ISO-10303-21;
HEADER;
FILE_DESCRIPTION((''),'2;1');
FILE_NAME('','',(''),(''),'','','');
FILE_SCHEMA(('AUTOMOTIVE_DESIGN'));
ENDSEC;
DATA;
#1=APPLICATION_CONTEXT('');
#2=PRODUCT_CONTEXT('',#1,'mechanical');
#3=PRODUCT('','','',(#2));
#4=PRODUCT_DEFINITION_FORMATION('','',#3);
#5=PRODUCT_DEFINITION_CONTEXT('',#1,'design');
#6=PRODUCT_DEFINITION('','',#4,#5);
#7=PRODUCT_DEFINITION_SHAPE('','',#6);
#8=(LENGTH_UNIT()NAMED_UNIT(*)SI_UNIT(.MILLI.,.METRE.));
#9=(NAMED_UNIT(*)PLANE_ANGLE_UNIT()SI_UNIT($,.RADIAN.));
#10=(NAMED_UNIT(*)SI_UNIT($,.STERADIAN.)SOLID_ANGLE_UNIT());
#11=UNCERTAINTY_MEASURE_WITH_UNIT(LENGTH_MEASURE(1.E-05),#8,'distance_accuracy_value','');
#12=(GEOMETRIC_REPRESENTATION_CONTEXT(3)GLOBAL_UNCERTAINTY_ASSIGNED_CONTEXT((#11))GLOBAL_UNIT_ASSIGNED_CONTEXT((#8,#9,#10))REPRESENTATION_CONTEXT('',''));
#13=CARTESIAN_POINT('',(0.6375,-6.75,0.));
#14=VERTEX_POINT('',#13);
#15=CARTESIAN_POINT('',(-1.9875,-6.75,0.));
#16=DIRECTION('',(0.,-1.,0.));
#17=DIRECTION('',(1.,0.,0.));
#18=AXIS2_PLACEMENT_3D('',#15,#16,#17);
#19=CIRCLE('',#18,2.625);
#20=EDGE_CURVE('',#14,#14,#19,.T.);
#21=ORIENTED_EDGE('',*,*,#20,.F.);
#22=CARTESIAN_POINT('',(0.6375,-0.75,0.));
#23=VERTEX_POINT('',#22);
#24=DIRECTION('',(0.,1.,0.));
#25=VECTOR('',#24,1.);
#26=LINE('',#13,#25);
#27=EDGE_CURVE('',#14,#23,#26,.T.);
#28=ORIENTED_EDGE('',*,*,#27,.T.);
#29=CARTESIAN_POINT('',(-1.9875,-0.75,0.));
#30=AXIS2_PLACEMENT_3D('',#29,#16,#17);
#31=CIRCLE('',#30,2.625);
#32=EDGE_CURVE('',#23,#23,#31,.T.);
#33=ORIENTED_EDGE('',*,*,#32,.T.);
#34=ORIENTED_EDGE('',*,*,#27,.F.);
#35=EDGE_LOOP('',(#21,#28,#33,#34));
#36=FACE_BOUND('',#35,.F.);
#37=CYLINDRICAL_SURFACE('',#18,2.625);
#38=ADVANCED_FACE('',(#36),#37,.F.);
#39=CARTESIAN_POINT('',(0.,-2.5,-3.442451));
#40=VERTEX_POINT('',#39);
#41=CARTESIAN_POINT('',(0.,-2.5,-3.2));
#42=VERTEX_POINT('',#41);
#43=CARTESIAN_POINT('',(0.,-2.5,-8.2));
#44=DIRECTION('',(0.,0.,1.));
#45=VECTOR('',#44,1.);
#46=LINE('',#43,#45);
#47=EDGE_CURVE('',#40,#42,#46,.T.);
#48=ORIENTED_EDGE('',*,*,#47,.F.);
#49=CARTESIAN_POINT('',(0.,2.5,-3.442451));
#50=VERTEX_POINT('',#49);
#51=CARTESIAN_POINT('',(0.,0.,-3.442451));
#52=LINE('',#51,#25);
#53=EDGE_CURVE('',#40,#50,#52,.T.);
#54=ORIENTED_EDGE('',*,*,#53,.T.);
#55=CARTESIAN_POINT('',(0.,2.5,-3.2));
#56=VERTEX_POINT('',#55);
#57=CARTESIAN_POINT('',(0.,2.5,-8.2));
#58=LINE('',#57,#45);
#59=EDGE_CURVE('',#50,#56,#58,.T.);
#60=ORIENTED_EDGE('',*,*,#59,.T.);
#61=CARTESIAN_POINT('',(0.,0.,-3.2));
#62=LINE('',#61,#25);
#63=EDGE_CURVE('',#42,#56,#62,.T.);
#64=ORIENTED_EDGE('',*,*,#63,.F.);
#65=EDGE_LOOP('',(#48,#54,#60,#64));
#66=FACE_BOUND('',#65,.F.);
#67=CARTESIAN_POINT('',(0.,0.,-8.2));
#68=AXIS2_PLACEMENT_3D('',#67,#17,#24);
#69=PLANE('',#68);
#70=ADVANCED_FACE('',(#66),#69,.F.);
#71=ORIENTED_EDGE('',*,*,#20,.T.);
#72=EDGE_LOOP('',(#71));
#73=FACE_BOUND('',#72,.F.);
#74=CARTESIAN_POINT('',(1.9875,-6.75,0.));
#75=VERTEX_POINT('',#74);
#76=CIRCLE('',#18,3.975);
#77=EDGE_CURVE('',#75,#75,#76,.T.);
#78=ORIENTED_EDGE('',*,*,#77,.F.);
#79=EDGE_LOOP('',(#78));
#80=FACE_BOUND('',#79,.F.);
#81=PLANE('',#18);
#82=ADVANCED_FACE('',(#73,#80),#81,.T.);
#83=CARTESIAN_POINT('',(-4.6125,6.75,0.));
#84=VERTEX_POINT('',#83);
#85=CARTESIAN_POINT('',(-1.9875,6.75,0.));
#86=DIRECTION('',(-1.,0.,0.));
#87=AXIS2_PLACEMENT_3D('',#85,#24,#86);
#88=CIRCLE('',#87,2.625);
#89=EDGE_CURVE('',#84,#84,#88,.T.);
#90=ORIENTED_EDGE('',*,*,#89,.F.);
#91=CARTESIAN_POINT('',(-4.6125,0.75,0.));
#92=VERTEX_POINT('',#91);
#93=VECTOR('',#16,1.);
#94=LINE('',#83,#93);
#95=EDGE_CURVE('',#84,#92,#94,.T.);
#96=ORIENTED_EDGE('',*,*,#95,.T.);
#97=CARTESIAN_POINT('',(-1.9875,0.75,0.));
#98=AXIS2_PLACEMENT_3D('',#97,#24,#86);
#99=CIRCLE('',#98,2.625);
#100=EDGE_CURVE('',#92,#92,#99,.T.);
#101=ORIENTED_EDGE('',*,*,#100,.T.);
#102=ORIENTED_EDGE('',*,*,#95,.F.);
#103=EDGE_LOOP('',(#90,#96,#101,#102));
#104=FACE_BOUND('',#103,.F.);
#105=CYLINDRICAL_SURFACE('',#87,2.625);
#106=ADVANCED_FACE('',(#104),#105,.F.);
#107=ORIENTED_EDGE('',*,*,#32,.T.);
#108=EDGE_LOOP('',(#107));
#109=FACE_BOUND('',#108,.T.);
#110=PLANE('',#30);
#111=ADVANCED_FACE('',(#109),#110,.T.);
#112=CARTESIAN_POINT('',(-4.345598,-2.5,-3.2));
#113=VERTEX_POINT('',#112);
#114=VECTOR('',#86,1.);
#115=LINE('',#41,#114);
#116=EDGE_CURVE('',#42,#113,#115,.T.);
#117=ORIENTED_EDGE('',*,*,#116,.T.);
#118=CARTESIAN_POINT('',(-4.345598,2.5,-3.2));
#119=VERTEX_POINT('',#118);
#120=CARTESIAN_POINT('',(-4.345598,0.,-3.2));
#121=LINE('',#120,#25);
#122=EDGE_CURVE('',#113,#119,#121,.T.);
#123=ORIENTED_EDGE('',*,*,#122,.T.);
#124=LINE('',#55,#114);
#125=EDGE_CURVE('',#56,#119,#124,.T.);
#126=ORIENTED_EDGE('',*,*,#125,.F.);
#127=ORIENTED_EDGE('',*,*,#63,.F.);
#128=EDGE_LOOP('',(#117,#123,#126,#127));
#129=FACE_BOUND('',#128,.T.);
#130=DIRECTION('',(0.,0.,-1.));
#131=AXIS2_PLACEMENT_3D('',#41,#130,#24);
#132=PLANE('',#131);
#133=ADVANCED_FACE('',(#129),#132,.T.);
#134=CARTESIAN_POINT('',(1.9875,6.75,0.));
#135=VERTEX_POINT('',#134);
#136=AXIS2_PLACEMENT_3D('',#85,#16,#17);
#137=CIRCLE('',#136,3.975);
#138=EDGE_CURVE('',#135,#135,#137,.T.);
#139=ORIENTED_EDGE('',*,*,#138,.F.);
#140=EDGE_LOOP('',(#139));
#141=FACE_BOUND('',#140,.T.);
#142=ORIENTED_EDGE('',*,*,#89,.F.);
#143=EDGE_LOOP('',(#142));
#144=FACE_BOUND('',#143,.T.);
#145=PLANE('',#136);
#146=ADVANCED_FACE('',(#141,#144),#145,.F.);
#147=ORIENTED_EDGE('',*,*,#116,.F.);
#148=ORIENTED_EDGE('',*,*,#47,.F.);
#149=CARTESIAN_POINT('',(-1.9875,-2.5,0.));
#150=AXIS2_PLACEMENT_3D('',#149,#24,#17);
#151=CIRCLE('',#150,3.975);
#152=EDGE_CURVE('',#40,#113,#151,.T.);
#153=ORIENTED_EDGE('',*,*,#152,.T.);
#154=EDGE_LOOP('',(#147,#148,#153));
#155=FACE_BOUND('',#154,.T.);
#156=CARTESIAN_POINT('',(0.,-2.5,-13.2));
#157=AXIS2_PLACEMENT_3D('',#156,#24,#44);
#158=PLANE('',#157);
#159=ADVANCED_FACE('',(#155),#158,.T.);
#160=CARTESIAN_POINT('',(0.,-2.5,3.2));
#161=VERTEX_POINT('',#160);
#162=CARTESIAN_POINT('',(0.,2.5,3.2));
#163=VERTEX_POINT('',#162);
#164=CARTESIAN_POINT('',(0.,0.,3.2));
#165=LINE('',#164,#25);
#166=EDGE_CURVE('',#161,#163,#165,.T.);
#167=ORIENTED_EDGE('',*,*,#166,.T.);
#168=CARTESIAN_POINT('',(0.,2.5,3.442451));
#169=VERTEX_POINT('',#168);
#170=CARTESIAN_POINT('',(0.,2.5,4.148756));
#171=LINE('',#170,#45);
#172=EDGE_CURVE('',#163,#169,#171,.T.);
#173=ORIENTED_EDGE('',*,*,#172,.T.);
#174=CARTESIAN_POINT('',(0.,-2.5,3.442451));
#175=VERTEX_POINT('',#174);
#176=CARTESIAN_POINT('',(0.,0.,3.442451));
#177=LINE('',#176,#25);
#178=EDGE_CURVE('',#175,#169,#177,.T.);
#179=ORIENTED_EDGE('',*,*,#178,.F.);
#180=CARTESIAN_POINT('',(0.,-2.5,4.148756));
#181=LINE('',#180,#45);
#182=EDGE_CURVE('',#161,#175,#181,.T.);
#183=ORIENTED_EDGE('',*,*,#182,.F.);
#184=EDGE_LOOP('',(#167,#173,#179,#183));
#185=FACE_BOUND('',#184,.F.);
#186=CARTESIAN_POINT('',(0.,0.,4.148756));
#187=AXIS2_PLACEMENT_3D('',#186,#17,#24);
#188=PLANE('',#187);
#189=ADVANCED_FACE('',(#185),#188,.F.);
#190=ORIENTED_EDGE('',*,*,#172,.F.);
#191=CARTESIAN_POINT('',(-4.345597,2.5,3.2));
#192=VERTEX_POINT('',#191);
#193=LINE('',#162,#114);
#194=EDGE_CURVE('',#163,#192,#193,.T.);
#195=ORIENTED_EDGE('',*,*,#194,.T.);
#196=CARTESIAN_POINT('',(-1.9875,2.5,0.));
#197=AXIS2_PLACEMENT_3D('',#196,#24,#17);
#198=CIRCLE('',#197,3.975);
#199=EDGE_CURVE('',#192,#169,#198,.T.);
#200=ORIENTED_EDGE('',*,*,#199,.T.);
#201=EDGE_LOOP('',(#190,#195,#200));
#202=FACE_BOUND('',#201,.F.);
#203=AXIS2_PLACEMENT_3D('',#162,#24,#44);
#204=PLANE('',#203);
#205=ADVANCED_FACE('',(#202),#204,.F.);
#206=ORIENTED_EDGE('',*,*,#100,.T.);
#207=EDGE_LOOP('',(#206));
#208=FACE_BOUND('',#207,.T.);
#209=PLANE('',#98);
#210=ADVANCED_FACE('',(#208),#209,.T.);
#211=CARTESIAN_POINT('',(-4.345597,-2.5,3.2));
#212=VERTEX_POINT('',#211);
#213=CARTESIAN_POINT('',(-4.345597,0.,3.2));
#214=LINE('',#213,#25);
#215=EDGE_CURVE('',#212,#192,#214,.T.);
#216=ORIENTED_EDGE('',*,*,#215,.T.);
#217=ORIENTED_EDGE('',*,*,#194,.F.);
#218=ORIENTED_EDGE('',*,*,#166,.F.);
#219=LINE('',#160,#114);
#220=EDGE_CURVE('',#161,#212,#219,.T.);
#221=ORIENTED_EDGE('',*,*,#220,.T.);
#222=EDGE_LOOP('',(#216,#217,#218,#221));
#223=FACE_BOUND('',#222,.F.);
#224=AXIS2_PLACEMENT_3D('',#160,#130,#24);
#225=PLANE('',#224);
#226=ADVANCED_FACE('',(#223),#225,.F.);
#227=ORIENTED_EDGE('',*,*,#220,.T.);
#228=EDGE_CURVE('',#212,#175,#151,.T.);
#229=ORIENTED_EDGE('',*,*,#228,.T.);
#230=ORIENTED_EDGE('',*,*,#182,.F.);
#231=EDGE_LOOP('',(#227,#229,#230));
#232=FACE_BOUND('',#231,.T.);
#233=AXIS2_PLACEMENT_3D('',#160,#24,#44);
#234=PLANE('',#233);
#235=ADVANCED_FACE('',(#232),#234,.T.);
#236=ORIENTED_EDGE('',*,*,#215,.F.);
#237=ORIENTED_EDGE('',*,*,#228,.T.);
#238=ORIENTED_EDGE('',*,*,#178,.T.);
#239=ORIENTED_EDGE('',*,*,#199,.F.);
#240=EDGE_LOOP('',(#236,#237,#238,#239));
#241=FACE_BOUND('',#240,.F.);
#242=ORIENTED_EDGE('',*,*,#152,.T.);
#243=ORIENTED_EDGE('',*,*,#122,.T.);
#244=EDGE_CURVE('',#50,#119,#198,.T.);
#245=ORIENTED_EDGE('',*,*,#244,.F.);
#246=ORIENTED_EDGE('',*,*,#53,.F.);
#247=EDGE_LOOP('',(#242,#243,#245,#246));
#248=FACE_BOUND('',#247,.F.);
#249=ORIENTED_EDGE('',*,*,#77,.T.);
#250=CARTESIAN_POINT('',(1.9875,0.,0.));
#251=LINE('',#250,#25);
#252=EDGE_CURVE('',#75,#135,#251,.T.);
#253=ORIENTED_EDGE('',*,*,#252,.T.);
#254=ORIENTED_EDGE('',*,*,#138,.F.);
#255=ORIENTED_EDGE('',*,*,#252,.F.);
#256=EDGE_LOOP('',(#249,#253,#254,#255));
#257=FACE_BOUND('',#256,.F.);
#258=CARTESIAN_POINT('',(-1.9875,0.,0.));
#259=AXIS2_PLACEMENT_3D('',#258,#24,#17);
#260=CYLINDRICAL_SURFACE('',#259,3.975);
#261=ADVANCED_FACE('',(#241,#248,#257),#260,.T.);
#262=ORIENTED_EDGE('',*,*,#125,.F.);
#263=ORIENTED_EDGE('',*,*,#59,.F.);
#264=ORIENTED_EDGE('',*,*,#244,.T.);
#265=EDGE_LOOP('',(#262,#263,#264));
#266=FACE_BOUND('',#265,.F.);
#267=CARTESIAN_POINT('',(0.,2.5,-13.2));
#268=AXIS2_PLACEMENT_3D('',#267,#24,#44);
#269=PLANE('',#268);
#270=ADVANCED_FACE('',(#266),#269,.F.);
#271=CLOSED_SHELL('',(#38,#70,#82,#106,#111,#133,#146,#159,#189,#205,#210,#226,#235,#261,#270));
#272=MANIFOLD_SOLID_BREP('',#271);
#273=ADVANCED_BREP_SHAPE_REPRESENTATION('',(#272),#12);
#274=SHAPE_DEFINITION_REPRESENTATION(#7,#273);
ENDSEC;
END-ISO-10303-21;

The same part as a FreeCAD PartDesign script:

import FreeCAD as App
import Part
import Sketcher
from FreeCAD import Vector
Q = App.Units.Quantity

doc = App.newDocument("Part")
params = doc.addObject("Spreadsheet::Sheet", "Params")
for row, (alias, value) in enumerate([
    ("sketch1_height", "13.5 mm"),
    ("revolution_angle", "360 deg"),
    ("sketch2_width", "5 mm"),
    ("sketch2_height", "10 mm"),
    ("pocket1_length", "25 mm"),
    ("sketch3_diameter", "5.25 mm"),
    ("pocket2_length", "6 mm"),
    ("sketch4_diameter", "5.25 mm"),
    ("pocket3_length", "6 mm"),
], start=1):
    params.set(f"A{row}", alias)
    params.set(f"B{row}", "=" + value)
    params.setAlias(f"B{row}", alias)

body = doc.addObject("PartDesign::Body", "Body")

sketch1 = body.newObject("Sketcher::SketchObject", "Sketch")
sketch1.AttachmentSupport = (doc.getObject("XY_Plane"), [""])
sketch1.MapMode = "FlatFace"
sketch1.addGeometry([
    Part.LineSegment(Vector(-2, 6.8, 0), Vector(-2, -6.8, 0)),
    Part.LineSegment(Vector(-2, -6.8, 0), Vector(2, -6.8, 0)),
    Part.LineSegment(Vector(2, -6.8, 0), Vector(2, 6.8, 0)),
    Part.LineSegment(Vector(2, 6.8, 0), Vector(-2, 6.8, 0)),
], False)
sketch1.addGeometry(Part.LineSegment(Vector(-2, 6.8, 0), Vector(-2, -6.8, 0)), True)
sketch1.addConstraint([
    Sketcher.Constraint("Coincident", 0, 2, 1, 1),
    Sketcher.Constraint("Coincident", 1, 2, 2, 1),
    Sketcher.Constraint("Coincident", 2, 2, 3, 1),
    Sketcher.Constraint("Coincident", 3, 2, 0, 1),
    Sketcher.Constraint("Vertical", 0),
    Sketcher.Constraint("Horizontal", 1),
    Sketcher.Constraint("Vertical", 2),
    Sketcher.Constraint("Horizontal", 3),
    Sketcher.Constraint("Vertical", 4),
    Sketcher.Constraint("Coincident", 4, 1, 3, 2),
    Sketcher.Constraint("Symmetric", 0, 2, 2, 2, -1, 1),
    Sketcher.Constraint("Horizontal", 1, 2, 4, 2),
    Sketcher.Constraint("DistanceY", 0, 2, 0, 1, Q("13.5 mm")),
    Sketcher.Constraint("DistanceX", 1, 1, 1, 2, Q("3.975 mm")),
])
sketch1.setExpression("Constraints[12]", "Params.sketch1_height")
revolution = body.newObject("PartDesign::Revolution", "Revolution")
revolution.Profile = sketch1
revolution.ReferenceAxis = (sketch1, ["Axis0"])
revolution.setExpression("Angle", "Params.revolution_angle")

sketch2 = body.newObject("Sketcher::SketchObject", "Sketch001")
sketch2.AttachmentSupport = (doc.getObject("YZ_Plane"), [""])
sketch2.MapMode = "FlatFace"
sketch2.addGeometry([
    Part.LineSegment(Vector(-2.5, -3.2, 0), Vector(-2.5, -13.2, 0)),
    Part.LineSegment(Vector(-2.5, -13.2, 0), Vector(2.5, -13.2, 0)),
    Part.LineSegment(Vector(2.5, -13.2, 0), Vector(2.5, -3.2, 0)),
    Part.LineSegment(Vector(2.5, -3.2, 0), Vector(-2.5, -3.2, 0)),
    Part.LineSegment(Vector(-2.5, 5.1, 0), Vector(-2.5, 3.2, 0)),
    Part.LineSegment(Vector(-2.5, 3.2, 0), Vector(2.5, 3.2, 0)),
    Part.LineSegment(Vector(2.5, 3.2, 0), Vector(2.5, 5.1, 0)),
    Part.LineSegment(Vector(2.5, 5.1, 0), Vector(-2.5, 5.1, 0)),
], False)
sketch2.addConstraint([
    Sketcher.Constraint("Coincident", 0, 2, 1, 1),
    Sketcher.Constraint("Coincident", 1, 2, 2, 1),
    Sketcher.Constraint("Coincident", 2, 2, 3, 1),
    Sketcher.Constraint("Coincident", 3, 2, 0, 1),
    Sketcher.Constraint("Coincident", 4, 2, 5, 1),
    Sketcher.Constraint("Coincident", 5, 2, 6, 1),
    Sketcher.Constraint("Coincident", 6, 2, 7, 1),
    Sketcher.Constraint("Coincident", 7, 2, 4, 1),
    Sketcher.Constraint("Vertical", 0),
    Sketcher.Constraint("Horizontal", 1),
    Sketcher.Constraint("Vertical", 2),
    Sketcher.Constraint("Horizontal", 3),
    Sketcher.Constraint("Vertical", 4),
    Sketcher.Constraint("Horizontal", 5),
    Sketcher.Constraint("Vertical", 6),
    Sketcher.Constraint("Horizontal", 7),
    Sketcher.Constraint("Symmetric", 2, 2, 4, 2, -1, 1),
    Sketcher.Constraint("Vertical", 3, 2, 4, 2),
    Sketcher.Constraint("Vertical", 2, 2, 5, 2),
    Sketcher.Constraint("DistanceX", 1, 1, 1, 2, Q("5 mm")),
    Sketcher.Constraint("DistanceY", 0, 2, 0, 1, Q("10 mm")),
    Sketcher.Constraint("DistanceY", 0, 2, -1, 1, Q("13.2 mm")),
    Sketcher.Constraint("DistanceY", 4, 2, 4, 1, Q("1.897511 mm")),
])
sketch2.setExpression("Constraints[19]", "Params.sketch2_width")
sketch2.setExpression("Constraints[20]", "Params.sketch2_height")
pocket1 = body.newObject("PartDesign::Pocket", "Pocket")
pocket1.Profile = sketch2
pocket1.setExpression("Length", "Params.pocket1_length")

sketch3 = body.newObject("Sketcher::SketchObject", "Sketch002")
sketch3.AttachmentSupport = (doc.getObject("XZ_Plane"), [""])
sketch3.MapMode = "FlatFace"
sketch3.AttachmentOffset = App.Placement(Vector(0, 0, 6.75), App.Rotation())
sketch3.addGeometry(Part.Circle(Vector(-2, 0, 0), Vector(0, 0, 1), 2.6), False)
sketch3.addConstraint([
    Sketcher.Constraint("PointOnObject", 0, 3, -1),
    Sketcher.Constraint("Diameter", 0, Q("5.25 mm")),
    Sketcher.Constraint("DistanceX", 0, 3, -1, 1, Q("1.9875 mm")),
])
sketch3.setExpression("Constraints[1]", "Params.sketch3_diameter")
pocket2 = body.newObject("PartDesign::Pocket", "Pocket001")
pocket2.Profile = sketch3
pocket2.setExpression("Length", "Params.pocket2_length")

sketch4 = body.newObject("Sketcher::SketchObject", "Sketch003")
sketch4.AttachmentSupport = (doc.getObject("XZ_Plane"), [""])
sketch4.MapMode = "FlatFace"
sketch4.AttachmentOffset = App.Placement(Vector(0, 0, -6.75), App.Rotation())
sketch4.addGeometry(Part.Circle(Vector(-2, 0, 0), Vector(0, 0, 1), 2.6), False)
sketch4.addConstraint([
    Sketcher.Constraint("PointOnObject", 0, 3, -1),
    Sketcher.Constraint("Diameter", 0, Q("5.25 mm")),
    Sketcher.Constraint("DistanceX", 0, 3, -1, 1, Q("1.9875 mm")),
])
sketch4.setExpression("Constraints[1]", "Params.sketch4_diameter")
pocket3 = body.newObject("PartDesign::Pocket", "Pocket002")
pocket3.Profile = sketch4
pocket3.setExpression("Length", "Params.pocket3_length")
pocket3.Reversed = True

doc.recompute()
